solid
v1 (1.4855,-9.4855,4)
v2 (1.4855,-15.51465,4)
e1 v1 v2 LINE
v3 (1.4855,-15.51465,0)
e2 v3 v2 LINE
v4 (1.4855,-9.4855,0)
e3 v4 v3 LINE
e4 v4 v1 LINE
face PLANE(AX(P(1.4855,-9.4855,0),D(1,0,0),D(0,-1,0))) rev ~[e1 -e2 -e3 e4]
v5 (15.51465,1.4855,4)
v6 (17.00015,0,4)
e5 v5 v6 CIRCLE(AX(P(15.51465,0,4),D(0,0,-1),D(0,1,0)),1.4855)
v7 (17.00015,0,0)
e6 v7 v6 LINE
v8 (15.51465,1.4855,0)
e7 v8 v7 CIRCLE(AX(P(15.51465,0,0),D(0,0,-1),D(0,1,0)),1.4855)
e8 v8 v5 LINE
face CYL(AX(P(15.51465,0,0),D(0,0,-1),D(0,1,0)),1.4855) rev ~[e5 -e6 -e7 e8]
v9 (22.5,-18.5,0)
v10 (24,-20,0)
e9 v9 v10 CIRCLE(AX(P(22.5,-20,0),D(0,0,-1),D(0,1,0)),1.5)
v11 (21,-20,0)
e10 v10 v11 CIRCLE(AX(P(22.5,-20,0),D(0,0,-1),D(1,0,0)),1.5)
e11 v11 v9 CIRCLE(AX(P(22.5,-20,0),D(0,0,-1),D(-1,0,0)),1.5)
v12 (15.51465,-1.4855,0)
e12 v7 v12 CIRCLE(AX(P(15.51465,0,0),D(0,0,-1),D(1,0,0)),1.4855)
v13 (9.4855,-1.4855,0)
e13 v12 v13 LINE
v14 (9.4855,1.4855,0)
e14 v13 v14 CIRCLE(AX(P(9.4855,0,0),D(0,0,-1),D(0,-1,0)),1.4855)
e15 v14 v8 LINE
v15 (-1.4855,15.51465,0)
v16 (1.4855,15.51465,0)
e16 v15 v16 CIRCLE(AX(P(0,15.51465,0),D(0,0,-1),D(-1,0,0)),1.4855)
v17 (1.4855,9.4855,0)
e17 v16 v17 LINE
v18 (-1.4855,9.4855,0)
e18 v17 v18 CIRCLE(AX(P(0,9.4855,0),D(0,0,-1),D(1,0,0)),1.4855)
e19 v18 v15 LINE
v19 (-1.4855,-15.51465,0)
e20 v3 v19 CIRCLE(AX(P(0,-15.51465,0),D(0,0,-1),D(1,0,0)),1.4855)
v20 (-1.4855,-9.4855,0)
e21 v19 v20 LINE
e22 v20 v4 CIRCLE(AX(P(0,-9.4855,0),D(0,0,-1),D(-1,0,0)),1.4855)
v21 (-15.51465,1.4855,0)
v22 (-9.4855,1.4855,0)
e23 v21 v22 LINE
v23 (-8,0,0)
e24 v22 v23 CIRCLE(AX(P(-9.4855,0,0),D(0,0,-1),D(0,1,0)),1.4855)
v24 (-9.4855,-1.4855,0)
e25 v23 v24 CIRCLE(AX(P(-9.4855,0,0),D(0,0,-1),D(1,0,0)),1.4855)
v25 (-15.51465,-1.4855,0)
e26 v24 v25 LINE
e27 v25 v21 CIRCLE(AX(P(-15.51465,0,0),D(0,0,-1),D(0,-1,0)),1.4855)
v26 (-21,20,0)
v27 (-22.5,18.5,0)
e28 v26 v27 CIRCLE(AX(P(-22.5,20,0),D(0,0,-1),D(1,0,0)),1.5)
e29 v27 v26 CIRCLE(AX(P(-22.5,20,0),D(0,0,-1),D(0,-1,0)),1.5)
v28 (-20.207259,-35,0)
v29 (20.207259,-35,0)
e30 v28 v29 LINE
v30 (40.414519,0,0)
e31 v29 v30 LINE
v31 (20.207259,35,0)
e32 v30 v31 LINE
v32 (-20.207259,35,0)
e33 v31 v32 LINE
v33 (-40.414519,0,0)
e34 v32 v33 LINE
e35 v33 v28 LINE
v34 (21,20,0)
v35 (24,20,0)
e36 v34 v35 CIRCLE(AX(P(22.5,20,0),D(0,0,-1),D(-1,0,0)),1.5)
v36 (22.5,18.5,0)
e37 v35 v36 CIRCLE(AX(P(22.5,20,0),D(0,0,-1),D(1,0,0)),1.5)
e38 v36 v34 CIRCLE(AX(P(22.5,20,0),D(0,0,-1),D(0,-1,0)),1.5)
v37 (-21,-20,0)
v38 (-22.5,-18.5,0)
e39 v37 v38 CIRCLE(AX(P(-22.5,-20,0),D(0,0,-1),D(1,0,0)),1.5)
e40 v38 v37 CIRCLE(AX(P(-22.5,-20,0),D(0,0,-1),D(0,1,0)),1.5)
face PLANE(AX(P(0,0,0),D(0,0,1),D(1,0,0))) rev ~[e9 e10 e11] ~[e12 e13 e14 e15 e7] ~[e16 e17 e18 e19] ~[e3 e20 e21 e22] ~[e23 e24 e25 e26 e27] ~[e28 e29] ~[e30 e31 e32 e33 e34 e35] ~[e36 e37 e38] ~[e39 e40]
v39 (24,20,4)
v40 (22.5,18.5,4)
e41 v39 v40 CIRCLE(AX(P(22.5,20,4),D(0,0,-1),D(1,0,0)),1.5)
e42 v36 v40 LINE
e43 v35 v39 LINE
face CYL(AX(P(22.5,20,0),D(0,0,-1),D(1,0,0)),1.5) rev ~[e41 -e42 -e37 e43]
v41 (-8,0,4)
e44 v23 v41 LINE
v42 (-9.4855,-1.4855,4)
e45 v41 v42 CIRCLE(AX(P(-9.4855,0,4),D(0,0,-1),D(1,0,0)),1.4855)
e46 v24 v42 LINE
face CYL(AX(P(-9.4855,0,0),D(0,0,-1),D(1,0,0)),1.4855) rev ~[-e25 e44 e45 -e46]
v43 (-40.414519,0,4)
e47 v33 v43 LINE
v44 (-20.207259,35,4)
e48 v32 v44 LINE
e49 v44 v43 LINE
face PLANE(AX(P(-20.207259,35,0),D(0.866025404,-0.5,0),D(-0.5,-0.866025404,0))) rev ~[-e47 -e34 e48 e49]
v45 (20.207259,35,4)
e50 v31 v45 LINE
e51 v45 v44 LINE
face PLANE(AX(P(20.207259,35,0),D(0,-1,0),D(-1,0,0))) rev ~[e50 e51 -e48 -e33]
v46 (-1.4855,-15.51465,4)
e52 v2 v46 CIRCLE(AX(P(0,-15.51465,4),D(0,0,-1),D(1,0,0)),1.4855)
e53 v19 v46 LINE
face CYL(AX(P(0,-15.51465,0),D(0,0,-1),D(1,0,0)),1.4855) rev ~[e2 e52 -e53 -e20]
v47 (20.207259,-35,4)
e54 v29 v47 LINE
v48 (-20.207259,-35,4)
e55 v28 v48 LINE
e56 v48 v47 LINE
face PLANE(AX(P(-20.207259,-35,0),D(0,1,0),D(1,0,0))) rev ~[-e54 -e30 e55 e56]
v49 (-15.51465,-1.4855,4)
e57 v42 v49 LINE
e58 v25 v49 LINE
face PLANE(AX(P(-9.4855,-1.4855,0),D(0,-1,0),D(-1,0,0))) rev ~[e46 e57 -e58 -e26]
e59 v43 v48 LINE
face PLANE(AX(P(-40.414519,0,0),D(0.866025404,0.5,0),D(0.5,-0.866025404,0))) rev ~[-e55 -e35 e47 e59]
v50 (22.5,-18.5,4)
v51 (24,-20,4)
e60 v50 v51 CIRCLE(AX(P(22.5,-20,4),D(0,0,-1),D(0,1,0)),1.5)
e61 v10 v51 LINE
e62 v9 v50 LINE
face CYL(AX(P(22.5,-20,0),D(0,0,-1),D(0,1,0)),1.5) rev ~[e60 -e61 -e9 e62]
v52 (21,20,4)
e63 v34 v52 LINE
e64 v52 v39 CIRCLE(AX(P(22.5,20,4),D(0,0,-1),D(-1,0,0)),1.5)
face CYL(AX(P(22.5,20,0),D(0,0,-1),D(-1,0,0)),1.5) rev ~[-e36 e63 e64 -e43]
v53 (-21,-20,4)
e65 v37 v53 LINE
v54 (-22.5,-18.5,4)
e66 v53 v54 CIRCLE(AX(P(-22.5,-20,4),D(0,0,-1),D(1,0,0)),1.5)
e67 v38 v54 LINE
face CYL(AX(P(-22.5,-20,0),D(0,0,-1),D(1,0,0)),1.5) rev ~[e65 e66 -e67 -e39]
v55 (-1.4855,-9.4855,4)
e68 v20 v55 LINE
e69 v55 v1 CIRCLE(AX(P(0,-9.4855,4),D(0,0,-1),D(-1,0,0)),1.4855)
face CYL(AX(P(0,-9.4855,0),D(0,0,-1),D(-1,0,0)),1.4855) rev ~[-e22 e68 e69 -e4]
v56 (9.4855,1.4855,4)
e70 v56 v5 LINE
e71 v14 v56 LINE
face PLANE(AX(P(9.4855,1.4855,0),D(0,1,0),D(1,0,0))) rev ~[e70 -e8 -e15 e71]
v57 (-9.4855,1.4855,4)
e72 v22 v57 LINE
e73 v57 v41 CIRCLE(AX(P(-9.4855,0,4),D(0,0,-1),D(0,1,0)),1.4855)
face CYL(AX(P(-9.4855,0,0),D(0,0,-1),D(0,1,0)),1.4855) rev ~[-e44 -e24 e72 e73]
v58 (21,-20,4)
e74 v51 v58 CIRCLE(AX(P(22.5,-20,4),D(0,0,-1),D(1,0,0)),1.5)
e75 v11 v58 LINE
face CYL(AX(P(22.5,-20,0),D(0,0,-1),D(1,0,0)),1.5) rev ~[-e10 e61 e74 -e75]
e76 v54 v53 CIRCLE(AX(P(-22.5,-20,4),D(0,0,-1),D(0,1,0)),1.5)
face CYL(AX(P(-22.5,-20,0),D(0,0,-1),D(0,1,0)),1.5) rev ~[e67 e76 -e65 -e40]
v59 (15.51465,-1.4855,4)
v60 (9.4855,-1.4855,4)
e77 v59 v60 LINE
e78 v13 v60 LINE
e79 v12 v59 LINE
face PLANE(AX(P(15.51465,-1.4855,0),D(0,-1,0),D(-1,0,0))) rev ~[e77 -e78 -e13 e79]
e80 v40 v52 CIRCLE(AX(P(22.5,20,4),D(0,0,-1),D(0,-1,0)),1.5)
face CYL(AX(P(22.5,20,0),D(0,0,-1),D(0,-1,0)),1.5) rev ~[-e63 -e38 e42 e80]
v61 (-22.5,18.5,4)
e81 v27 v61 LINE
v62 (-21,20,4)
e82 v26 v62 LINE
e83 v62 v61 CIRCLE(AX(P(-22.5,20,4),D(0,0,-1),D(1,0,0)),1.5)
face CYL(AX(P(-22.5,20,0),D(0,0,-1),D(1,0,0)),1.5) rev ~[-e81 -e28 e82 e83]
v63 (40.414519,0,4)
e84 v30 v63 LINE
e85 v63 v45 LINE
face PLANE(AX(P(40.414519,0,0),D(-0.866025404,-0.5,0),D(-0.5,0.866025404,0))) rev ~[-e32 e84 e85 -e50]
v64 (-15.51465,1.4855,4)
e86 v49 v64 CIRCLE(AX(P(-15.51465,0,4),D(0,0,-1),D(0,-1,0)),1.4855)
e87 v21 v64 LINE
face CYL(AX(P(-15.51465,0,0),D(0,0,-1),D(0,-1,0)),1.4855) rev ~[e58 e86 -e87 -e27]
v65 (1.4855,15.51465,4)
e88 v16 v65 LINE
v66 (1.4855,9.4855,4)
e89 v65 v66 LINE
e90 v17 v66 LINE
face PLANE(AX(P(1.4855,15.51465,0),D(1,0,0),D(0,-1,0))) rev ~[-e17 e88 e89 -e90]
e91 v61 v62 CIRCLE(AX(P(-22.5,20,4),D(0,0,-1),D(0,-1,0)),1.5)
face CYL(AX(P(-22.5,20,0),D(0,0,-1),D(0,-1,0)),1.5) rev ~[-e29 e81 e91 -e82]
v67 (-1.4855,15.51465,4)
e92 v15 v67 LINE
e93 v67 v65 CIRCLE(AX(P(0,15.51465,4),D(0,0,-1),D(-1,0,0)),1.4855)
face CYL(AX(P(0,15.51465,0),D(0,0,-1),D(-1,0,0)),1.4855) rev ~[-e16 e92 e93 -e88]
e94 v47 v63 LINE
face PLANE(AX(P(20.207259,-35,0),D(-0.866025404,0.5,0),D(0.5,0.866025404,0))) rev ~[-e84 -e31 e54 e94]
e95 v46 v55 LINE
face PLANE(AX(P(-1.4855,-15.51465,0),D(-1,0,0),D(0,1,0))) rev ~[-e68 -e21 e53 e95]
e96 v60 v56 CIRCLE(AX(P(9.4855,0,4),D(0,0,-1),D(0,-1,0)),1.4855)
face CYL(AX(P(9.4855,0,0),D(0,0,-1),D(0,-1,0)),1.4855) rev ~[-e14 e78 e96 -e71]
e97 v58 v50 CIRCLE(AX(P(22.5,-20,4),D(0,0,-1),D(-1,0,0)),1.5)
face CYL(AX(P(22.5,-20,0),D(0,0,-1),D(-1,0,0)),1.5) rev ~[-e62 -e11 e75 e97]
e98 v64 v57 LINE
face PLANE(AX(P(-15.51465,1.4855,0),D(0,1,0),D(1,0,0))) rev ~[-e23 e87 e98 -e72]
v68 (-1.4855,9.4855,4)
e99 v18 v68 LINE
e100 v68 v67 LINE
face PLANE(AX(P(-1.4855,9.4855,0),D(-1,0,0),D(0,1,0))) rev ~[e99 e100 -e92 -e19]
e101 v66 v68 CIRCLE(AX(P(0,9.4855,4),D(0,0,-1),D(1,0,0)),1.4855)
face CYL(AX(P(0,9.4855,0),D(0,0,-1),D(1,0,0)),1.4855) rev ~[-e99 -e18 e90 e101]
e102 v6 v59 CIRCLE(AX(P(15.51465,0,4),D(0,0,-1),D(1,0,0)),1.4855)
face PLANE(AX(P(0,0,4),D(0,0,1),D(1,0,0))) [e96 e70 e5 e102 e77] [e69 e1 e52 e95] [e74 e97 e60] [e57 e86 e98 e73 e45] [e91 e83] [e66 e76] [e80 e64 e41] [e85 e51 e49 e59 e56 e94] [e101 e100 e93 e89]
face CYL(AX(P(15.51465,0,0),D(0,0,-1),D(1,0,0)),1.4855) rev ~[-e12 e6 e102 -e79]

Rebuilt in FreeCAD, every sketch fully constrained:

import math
import FreeCAD as App
import Part
import Sketcher
Q = App.Units.Quantity

doc = App.newDocument("Part")
body = doc.addObject("PartDesign::Body", "Body")

sketch1 = body.newObject("Sketcher::SketchObject", "Sketch")
sketch1.AttachmentSupport = (doc.getObject("XY_Plane"), [""])
sketch1.MapMode = "FlatFace"
sketch1.addGeometry([
    Part.LineSegment(App.Vector(-20.2, -35, 0), App.Vector(20.2, -35, 0)),
    Part.LineSegment(App.Vector(20.2, -35, 0), App.Vector(40.4, 0, 0)),
    Part.LineSegment(App.Vector(40.4, 0, 0), App.Vector(20.2, 35, 0)),
    Part.LineSegment(App.Vector(20.2, 35, 0), App.Vector(-20.2, 35, 0)),
    Part.LineSegment(App.Vector(-20.2, 35, 0), App.Vector(-40.4, 0, 0)),
    Part.LineSegment(App.Vector(-40.4, 0, 0), App.Vector(-20.2, -35, 0)),
    Part.ArcOfCircle(Part.Circle(App.Vector(-22.5, -20, 0), App.Vector(0, 0, 1), 1.5), math.radians(90), math.radians(360)),
    Part.ArcOfCircle(Part.Circle(App.Vector(-22.5, -20, 0), App.Vector(0, 0, 1), 1.5), math.radians(0), math.radians(90)),
    Part.ArcOfCircle(Part.Circle(App.Vector(22.5, -20, 0), App.Vector(0, 0, 1), 1.5), math.radians(180), math.radians(360)),
    Part.ArcOfCircle(Part.Circle(App.Vector(22.5, -20, 0), App.Vector(0, 0, 1), 1.5), math.radians(90), math.radians(180)),
    Part.ArcOfCircle(Part.Circle(App.Vector(22.5, -20, 0), App.Vector(0, 0, 1), 1.5), math.radians(0), math.radians(90)),
    Part.ArcOfCircle(Part.Circle(App.Vector(-22.5, 20, 0), App.Vector(0, 0, 1), 1.5), math.radians(0), math.radians(270)),
    Part.ArcOfCircle(Part.Circle(App.Vector(-22.5, 20, 0), App.Vector(0, 0, 1), 1.5), math.radians(-90), math.radians(0)),
    Part.ArcOfCircle(Part.Circle(App.Vector(15.5, 0, 0), App.Vector(0, 0, 1), 1.5), math.radians(-90), math.radians(0)),
    Part.LineSegment(App.Vector(15.5, -1.5, 0), App.Vector(9.5, -1.5, 0)),
    Part.ArcOfCircle(Part.Circle(App.Vector(9.5, 0, 0), App.Vector(0, 0, 1), 1.5), math.radians(90), math.radians(270)),
    Part.LineSegment(App.Vector(9.5, 1.5, 0), App.Vector(15.5, 1.5, 0)),
    Part.ArcOfCircle(Part.Circle(App.Vector(15.5, 0, 0), App.Vector(0, 0, 1), 1.5), math.radians(0), math.radians(90)),
    Part.ArcOfCircle(Part.Circle(App.Vector(0, -15.5, 0), App.Vector(0, 0, 1), 1.5), math.radians(180), math.radians(360)),
    Part.LineSegment(App.Vector(-1.5, -15.5, 0), App.Vector(-1.5, -9.5, 0)),
    Part.ArcOfCircle(Part.Circle(App.Vector(0, -9.5, 0), App.Vector(0, 0, 1), 1.5), math.radians(0), math.radians(180)),
    Part.LineSegment(App.Vector(1.5, -9.5, 0), App.Vector(1.5, -15.5, 0)),
    Part.LineSegment(App.Vector(-9.5, -1.5, 0), App.Vector(-15.5, -1.5, 0)),
    Part.ArcOfCircle(Part.Circle(App.Vector(-15.5, 0, 0), App.Vector(0, 0, 1), 1.5), math.radians(90), math.radians(270)),
    Part.LineSegment(App.Vector(-15.5, 1.5, 0), App.Vector(-9.5, 1.5, 0)),
    Part.ArcOfCircle(Part.Circle(App.Vector(-9.5, 0, 0), App.Vector(0, 0, 1), 1.5), math.radians(0), math.radians(90)),
    Part.ArcOfCircle(Part.Circle(App.Vector(-9.5, 0, 0), App.Vector(0, 0, 1), 1.5), math.radians(-90), math.radians(0)),
    Part.LineSegment(App.Vector(1.5, 15.5, 0), App.Vector(1.5, 9.5, 0)),
    Part.ArcOfCircle(Part.Circle(App.Vector(0, 9.5, 0), App.Vector(0, 0, 1), 1.5), math.radians(180), math.radians(360)),
    Part.LineSegment(App.Vector(-1.5, 9.5, 0), App.Vector(-1.5, 15.5, 0)),
    Part.ArcOfCircle(Part.Circle(App.Vector(0, 15.5, 0), App.Vector(0, 0, 1), 1.5), math.radians(0), math.radians(180)),
    Part.ArcOfCircle(Part.Circle(App.Vector(22.5, 20, 0), App.Vector(0, 0, 1), 1.5), math.radians(-90), math.radians(0)),
    Part.ArcOfCircle(Part.Circle(App.Vector(22.5, 20, 0), App.Vector(0, 0, 1), 1.5), math.radians(180), math.radians(270)),
    Part.ArcOfCircle(Part.Circle(App.Vector(22.5, 20, 0), App.Vector(0, 0, 1), 1.5), math.radians(0), math.radians(180)),
], False)
sketch1.addConstraint([
    Sketcher.Constraint("Coincident", 0, 2, 1, 1),
    Sketcher.Constraint("Coincident", 1, 2, 2, 1),
    Sketcher.Constraint("Coincident", 2, 2, 3, 1),
    Sketcher.Constraint("Coincident", 3, 2, 4, 1),
    Sketcher.Constraint("Coincident", 4, 2, 5, 1),
    Sketcher.Constraint("Coincident", 5, 2, 0, 1),
    Sketcher.Constraint("Tangent", 6, 1, 7, 2),
    Sketcher.Constraint("Coincident", 7, 1, 6, 2),
    Sketcher.Constraint("Tangent", 8, 1, 9, 2),
    Sketcher.Constraint("Tangent", 9, 1, 10, 2),
    Sketcher.Constraint("Tangent", 10, 1, 8, 2),
    Sketcher.Constraint("Tangent", 11, 1, 12, 2),
    Sketcher.Constraint("Coincident", 12, 1, 11, 2),
    Sketcher.Constraint("Tangent", 13, 1, 14, 1),
    Sketcher.Constraint("Tangent", 14, 2, 15, 2),
    Sketcher.Constraint("Tangent", 15, 1, 16, 1),
    Sketcher.Constraint("Tangent", 16, 2, 17, 2),
    Sketcher.Constraint("Tangent", 17, 1, 13, 2),
    Sketcher.Constraint("Tangent", 18, 1, 19, 1),
    Sketcher.Constraint("Tangent", 19, 2, 20, 2),
    Sketcher.Constraint("Tangent", 20, 1, 21, 1),
    Sketcher.Constraint("Tangent", 21, 2, 18, 2),
    Sketcher.Constraint("Tangent", 22, 2, 23, 2),
    Sketcher.Constraint("Tangent", 23, 1, 24, 1),
    Sketcher.Constraint("Tangent", 24, 2, 25, 2),
    Sketcher.Constraint("Tangent", 25, 1, 26, 2),
    Sketcher.Constraint("Tangent", 26, 1, 22, 1),
    Sketcher.Constraint("Tangent", 27, 2, 28, 2),
    Sketcher.Constraint("Tangent", 28, 1, 29, 1),
    Sketcher.Constraint("Tangent", 29, 2, 30, 2),
    Sketcher.Constraint("Tangent", 30, 1, 27, 1),
    Sketcher.Constraint("Tangent", 31, 1, 32, 2),
    Sketcher.Constraint("Tangent", 32, 1, 33, 2),
    Sketcher.Constraint("Tangent", 33, 1, 31, 2),
    Sketcher.Constraint("Horizontal", 0),
    Sketcher.Constraint("Horizontal", 3),
    Sketcher.Constraint("Horizontal", 14),
    Sketcher.Constraint("Horizontal", 16),
    Sketcher.Constraint("Vertical", 19),
    Sketcher.Constraint("Vertical", 21),
    Sketcher.Constraint("Horizontal", 22),
    Sketcher.Constraint("Horizontal", 24),
    Sketcher.Constraint("Vertical", 27),
    Sketcher.Constraint("Vertical", 29),
    Sketcher.Constraint("Equal", 7, 8),
    Sketcher.Constraint("Equal", 10, 11),
    Sketcher.Constraint("Equal", 13, 15),
    Sketcher.Constraint("Equal", 17, 18),
    Sketcher.Constraint("Equal", 20, 23),
    Sketcher.Constraint("Equal", 23, 25),
    Sketcher.Constraint("Equal", 26, 28),
    Sketcher.Constraint("Equal", 12, 31),
    Sketcher.Constraint("Symmetric", 8, 3, 11, 3, -1, 1),
    Sketcher.Constraint("Symmetric", 13, 3, 23, 3, -1, 1),
    Sketcher.Constraint("Symmetric", 20, 3, 28, 3, -1, 1),
    Sketcher.Constraint("Symmetric", 6, 3, 31, 3, -1, 1),
    Sketcher.Constraint("Symmetric", 0, 2, 3, 2, -1, 1),
    Sketcher.Constraint("Symmetric", 1, 2, 4, 2, -1, 1),
    Sketcher.Constraint("Symmetric", 6, 3, 8, 3, -2),
    Sketcher.Constraint("Symmetric", 15, 3, 25, 3, -2),
    Sketcher.Constraint("Symmetric", 18, 3, 30, 3, -1),
    Sketcher.Constraint("PointOnObject", 1, 2, -1),
    Sketcher.Constraint("PointOnObject", 17, 1, -1),
    Sketcher.Constraint("PointOnObject", 25, 1, -1),
    Sketcher.Constraint("Parallel", 2, 5),
    Sketcher.Constraint("Horizontal", 10, 3, 7, 1),
    Sketcher.Constraint("Horizontal", 7, 1, 8, 1),
    Sketcher.Constraint("Horizontal", 8, 1, 10, 1),
    Sketcher.Constraint("Horizontal", 33, 3, 11, 1),
    Sketcher.Constraint("Horizontal", 11, 1, 32, 1),
    Sketcher.Constraint("Horizontal", 32, 1, 33, 1),
    Sketcher.Constraint("Vertical", 0, 2, 2, 2),
    Sketcher.Constraint("Vertical", 12, 3, 6, 1),
    Sketcher.Constraint("Vertical", 33, 3, 9, 1),
    Sketcher.Constraint("Vertical", 6, 1, 12, 1),
    Sketcher.Constraint("Vertical", 9, 1, 31, 1),
    Sketcher.Constraint("Equal", 24, 19),
    Sketcher.Constraint("Radius", 6, 1.5),
    Sketcher.Constraint("Angle", 1, Q("60 deg")),
    Sketcher.Constraint("DistanceY", 6, 3, -1, 1, 20.0),
    Sketcher.Constraint("DistanceY", 0, 2, -1, 1, 35.0),
    Sketcher.Constraint("DistanceX", 7, 1, -1, 1, 21.0),
    Sketcher.Constraint("DistanceX", 25, 1, -1, 1, 8.0),
    Sketcher.Constraint("DistanceY", 20, 3, 13, 1, 8.0),
    Sketcher.Constraint("Radius", 13, 1.4855),
    Sketcher.Constraint("DistanceX", 0, 1, 0, 2, 40.414519),
    Sketcher.Constraint("DistanceX", 14, 2, 14, 1, 6.02915),
])
pad1 = body.newObject("PartDesign::Pad", "Pad")
pad1.Profile = sketch1
pad1.Length = 4

doc.recompute()
